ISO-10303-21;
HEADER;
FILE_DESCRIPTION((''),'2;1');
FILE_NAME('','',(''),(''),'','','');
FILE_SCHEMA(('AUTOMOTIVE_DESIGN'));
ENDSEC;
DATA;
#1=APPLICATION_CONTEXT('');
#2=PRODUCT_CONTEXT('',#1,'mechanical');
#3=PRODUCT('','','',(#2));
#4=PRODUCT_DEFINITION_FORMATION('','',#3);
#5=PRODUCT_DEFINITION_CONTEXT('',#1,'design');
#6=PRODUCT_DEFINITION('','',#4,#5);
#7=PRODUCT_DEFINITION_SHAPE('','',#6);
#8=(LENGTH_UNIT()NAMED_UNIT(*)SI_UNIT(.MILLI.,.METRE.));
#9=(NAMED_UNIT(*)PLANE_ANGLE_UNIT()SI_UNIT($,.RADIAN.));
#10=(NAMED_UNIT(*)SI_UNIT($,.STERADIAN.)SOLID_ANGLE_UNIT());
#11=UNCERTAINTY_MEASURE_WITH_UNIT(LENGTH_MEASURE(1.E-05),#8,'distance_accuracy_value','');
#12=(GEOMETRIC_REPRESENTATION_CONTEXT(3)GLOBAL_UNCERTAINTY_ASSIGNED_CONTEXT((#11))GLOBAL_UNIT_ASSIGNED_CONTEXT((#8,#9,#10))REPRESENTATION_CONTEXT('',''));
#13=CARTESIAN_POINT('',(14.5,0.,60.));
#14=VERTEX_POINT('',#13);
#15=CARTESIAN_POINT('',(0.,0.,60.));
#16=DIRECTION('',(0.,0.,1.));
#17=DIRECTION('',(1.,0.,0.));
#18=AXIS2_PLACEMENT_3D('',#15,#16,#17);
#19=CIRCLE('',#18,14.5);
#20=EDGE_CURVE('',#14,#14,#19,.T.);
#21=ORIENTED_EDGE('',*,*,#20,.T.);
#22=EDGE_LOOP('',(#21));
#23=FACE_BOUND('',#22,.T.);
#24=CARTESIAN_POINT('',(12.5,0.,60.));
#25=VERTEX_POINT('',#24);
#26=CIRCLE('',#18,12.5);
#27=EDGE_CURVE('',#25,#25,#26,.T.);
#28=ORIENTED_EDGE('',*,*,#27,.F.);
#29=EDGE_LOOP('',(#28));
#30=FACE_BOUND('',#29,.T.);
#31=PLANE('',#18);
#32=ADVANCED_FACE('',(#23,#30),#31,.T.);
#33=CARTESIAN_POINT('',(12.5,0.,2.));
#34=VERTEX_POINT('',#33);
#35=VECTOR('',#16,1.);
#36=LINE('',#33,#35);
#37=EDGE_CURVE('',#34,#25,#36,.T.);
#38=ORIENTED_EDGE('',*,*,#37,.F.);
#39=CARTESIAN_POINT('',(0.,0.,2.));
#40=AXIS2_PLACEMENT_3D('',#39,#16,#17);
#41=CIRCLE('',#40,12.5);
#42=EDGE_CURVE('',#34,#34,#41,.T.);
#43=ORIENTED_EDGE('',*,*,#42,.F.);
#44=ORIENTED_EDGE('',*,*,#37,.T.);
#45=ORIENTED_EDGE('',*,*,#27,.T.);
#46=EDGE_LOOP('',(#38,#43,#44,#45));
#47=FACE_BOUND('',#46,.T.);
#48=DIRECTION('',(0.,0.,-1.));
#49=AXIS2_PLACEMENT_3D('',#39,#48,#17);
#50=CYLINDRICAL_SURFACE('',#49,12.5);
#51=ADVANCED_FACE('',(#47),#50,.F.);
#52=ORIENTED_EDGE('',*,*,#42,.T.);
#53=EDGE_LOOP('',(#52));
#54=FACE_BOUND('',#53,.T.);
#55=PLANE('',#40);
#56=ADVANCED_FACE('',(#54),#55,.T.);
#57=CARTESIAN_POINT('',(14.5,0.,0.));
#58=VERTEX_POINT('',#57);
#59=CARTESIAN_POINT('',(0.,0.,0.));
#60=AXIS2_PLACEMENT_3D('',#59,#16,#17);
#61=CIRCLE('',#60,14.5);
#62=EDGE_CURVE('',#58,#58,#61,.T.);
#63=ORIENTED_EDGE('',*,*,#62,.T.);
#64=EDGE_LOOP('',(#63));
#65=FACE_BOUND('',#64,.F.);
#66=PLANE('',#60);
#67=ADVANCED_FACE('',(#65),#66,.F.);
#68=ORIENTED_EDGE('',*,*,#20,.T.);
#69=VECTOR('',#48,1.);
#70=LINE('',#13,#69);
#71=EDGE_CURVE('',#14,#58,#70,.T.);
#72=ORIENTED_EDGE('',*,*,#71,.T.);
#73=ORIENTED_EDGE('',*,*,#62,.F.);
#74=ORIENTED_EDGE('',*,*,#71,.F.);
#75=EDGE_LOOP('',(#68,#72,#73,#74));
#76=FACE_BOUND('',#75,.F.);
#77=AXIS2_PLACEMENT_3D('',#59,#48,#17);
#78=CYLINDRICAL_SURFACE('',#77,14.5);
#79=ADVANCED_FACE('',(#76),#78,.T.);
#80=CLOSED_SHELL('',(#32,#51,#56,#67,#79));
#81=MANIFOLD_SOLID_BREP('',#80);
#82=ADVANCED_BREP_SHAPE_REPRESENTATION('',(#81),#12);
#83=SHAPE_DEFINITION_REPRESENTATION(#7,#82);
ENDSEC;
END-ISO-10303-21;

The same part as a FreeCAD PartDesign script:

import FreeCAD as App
import Part
import Sketcher
from FreeCAD import Vector
Q = App.Units.Quantity

doc = App.newDocument("Part")
body = doc.addObject("PartDesign::Body", "Body")

# Sketch on XY plane
sketch1 = body.newObject("Sketcher::SketchObject", "Sketch")
sketch1.AttachmentSupport = (doc.getObject("XY_Plane"), [""])
sketch1.MapMode = "FlatFace"
sketch1.addGeometry(Part.Circle(Vector(0, 0, 0), Vector(0, 0, 1), 14.5), False)
sketch1.addConstraint([
    Sketcher.Constraint("Coincident", 0, 3, -1, 1),
    Sketcher.Constraint("Diameter", 0, Q("29 mm")),
])
pad1 = body.newObject("PartDesign::Pad", "Pad")
pad1.Profile = sketch1
pad1.Length = 2

# Sketch on XY plane
sketch2 = body.newObject("Sketcher::SketchObject", "Sketch001")
sketch2.AttachmentSupport = (doc.getObject("XY_Plane"), [""])
sketch2.MapMode = "FlatFace"
sketch2.AttachmentOffset = App.Placement(Vector(0, 0, 2), App.Rotation())
sketch2.addGeometry([
    Part.Circle(Vector(0, 0, 0), Vector(0, 0, 1), 14.5),
    Part.Circle(Vector(0, 0, 0), Vector(0, 0, 1), 12.5),
], False)
sketch2.addConstraint([
    Sketcher.Constraint("Coincident", 0, 3, -1, 1),
    Sketcher.Constraint("Coincident", 1, 3, -1, 1),
    Sketcher.Constraint("Diameter", 0, Q("29 mm")),
    Sketcher.Constraint("Diameter", 1, Q("25 mm")),
])
pad2 = body.newObject("PartDesign::Pad", "Pad001")
pad2.Profile = sketch2
pad2.Length = 58

doc.recompute()
